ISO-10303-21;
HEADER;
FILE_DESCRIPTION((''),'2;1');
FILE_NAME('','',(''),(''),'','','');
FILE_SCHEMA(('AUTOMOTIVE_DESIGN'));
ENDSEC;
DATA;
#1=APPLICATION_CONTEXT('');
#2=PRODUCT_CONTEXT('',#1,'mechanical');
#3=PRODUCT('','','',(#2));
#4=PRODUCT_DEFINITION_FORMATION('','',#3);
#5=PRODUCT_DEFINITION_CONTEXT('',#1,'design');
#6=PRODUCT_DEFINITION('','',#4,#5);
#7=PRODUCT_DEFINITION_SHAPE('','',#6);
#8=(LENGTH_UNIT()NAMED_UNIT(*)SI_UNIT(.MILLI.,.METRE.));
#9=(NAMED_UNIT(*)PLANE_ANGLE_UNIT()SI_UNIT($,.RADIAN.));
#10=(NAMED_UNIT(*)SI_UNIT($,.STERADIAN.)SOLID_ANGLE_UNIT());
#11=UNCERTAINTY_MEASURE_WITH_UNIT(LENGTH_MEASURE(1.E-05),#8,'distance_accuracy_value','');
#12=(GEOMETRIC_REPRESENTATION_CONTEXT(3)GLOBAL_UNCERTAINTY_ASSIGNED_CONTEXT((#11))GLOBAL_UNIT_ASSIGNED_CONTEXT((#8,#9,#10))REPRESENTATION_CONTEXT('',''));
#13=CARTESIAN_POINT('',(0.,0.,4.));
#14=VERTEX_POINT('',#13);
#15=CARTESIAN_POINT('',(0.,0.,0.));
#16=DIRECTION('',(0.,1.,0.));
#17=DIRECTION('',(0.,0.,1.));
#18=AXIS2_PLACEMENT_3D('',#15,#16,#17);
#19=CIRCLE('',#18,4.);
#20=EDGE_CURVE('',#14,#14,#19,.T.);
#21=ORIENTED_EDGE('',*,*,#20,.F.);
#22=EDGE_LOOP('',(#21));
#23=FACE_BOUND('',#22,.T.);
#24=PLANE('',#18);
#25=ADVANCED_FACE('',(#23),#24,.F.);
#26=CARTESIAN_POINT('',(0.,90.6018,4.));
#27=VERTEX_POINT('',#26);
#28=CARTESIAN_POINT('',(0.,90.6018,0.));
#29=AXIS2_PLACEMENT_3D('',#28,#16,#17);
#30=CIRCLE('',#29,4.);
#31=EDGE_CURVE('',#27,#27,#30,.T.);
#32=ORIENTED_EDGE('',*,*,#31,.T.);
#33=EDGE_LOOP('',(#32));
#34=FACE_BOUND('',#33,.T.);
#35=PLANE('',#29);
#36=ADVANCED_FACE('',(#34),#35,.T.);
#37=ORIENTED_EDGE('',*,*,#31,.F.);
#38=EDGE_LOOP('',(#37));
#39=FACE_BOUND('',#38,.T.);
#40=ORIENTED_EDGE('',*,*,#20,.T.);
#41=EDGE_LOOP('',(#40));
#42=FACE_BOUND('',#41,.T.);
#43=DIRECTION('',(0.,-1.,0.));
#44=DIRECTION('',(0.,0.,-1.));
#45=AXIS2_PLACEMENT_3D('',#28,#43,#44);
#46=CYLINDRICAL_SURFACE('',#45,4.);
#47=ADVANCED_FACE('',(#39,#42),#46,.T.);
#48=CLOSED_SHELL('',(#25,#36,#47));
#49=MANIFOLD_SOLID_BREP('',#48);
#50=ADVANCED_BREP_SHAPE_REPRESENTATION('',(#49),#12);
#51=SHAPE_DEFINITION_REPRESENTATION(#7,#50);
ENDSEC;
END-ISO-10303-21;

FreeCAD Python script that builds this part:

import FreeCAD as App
import Part
import Sketcher

V = App.Vector

doc = App.newDocument("Part")
body = doc.addObject("PartDesign::Body", "Body")

# Sketch on XZ plane
sketch1 = body.newObject("Sketcher::SketchObject", "Sketch")
sketch1.AttachmentSupport = (doc.getObject("XZ_Plane"), [""])
sketch1.MapMode = "FlatFace"
sketch1.addGeometry(Part.Circle(V(0, 0, 0), V(0, 0, 1), 4), False)
sketch1.addConstraint([
    Sketcher.Constraint("Coincident", 0, 3, -1, 1),
    Sketcher.Constraint("Diameter", 0, 8.0),
])
pad1 = body.newObject("PartDesign::Pad", "Pad")
pad1.Profile = sketch1
pad1.Length = 90.6018
pad1.Reversed = True

doc.recompute()
